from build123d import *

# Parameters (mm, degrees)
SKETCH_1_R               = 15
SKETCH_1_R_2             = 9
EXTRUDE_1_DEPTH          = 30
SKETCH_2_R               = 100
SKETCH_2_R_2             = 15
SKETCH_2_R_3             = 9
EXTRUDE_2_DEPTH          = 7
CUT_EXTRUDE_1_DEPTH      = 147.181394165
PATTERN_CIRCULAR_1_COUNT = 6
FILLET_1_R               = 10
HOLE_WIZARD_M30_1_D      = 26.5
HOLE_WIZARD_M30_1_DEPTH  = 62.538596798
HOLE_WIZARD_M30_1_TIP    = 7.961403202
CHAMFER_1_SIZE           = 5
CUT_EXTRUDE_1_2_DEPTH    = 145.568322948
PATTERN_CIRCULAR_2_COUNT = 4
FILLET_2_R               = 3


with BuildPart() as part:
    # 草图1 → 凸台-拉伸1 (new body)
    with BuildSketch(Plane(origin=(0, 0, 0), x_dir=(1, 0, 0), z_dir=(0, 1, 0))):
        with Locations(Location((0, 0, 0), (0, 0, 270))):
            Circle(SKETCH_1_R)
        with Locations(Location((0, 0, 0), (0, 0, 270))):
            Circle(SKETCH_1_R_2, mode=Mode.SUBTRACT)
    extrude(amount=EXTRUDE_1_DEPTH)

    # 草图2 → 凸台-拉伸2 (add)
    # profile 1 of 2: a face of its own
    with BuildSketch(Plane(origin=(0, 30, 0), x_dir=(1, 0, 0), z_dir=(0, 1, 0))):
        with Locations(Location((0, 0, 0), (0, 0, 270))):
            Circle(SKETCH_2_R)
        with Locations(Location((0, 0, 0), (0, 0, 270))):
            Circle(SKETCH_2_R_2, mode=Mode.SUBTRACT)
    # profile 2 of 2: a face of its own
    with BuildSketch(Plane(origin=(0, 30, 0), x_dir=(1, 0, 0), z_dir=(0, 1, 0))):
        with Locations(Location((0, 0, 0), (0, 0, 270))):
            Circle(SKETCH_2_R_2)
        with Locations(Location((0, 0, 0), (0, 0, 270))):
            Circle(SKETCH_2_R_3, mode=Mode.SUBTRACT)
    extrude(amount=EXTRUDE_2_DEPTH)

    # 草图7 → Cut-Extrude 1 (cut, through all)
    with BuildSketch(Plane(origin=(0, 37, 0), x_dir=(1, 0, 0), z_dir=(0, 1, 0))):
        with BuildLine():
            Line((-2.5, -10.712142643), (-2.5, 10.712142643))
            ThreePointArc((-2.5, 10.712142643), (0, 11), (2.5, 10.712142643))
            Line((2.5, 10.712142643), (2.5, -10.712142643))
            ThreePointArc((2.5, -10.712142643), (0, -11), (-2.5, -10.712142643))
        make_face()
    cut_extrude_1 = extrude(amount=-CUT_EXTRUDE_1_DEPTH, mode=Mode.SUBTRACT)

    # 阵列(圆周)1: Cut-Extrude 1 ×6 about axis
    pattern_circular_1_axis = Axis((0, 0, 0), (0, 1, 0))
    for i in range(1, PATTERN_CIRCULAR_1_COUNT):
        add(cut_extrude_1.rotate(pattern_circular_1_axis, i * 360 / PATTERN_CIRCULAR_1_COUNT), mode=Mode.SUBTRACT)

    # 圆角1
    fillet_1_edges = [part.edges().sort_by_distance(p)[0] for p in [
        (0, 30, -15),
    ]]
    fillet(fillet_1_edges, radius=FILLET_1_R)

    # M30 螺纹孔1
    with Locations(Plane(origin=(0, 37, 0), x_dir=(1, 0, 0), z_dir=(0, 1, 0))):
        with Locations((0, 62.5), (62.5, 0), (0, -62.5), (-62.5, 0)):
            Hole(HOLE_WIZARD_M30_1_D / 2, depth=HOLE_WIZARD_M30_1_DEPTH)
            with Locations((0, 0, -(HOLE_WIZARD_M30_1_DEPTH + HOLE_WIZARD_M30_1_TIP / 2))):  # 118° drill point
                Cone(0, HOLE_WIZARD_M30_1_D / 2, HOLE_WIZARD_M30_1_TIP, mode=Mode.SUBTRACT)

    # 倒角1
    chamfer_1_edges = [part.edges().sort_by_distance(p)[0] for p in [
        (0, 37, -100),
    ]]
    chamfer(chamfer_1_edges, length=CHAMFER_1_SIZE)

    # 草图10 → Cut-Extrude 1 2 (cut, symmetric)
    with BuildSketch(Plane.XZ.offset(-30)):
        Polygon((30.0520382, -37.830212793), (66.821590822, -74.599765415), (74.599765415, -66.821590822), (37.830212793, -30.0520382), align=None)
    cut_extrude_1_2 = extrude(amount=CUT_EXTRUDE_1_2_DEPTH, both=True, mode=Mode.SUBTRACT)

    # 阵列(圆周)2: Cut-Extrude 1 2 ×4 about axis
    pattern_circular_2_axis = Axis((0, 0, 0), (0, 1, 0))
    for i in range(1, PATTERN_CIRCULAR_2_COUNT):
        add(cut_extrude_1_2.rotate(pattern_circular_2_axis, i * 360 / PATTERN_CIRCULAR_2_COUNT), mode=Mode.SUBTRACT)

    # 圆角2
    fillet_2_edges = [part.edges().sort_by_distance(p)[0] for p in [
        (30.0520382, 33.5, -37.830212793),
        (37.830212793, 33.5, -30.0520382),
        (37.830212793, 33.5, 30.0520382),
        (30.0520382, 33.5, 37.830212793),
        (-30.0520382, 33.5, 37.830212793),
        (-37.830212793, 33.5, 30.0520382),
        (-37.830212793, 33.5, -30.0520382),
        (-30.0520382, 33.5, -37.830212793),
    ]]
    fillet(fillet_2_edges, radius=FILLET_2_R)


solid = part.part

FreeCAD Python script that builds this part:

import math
import FreeCAD as App
import Part
import Sketcher

V = App.Vector
Q = App.Units.Quantity


def edges_at(feature, points):
    """Names of the edges that pass closest to the given points."""
    edges = feature.Shape.Edges
    near = lambda p: min(range(len(edges)), key=lambda i: edges[i].distToShape(Part.Vertex(*p))[0])
    return sorted({f"Edge{near(p) + 1}" for p in points})

doc = App.newDocument("Part")
body = doc.addObject("PartDesign::Body", "Body")

# Sketch on XZ plane
sketch1 = body.newObject("Sketcher::SketchObject", "Sketch")
sketch1.AttachmentSupport = (doc.getObject("XZ_Plane"), [""])
sketch1.MapMode = "FlatFace"
sketch1.addGeometry([
    Part.Circle(V(0, 0, 0), V(0, 0, 1), 15),
    Part.Circle(V(0, 0, 0), V(0, 0, 1), 9),
], False)
sketch1.addConstraint([
    Sketcher.Constraint("Coincident", 0, 3, -1, 1),
    Sketcher.Constraint("Coincident", 1, 3, -1, 1),
    Sketcher.Constraint("Diameter", 0, 30.0),
    Sketcher.Constraint("Diameter", 1, 18.0),
])
pad1 = body.newObject("PartDesign::Pad", "Pad")
pad1.Profile = sketch1
pad1.Length = 30
pad1.Reversed = True

# Sketch on XZ plane
sketch2 = body.newObject("Sketcher::SketchObject", "Sketch001")
sketch2.AttachmentSupport = (doc.getObject("XZ_Plane"), [""])
sketch2.MapMode = "FlatFace"
sketch2.AttachmentOffset = App.Placement(V(0, 0, -30), App.Rotation())
sketch2.addGeometry([
    Part.Circle(V(0, 0, 0), V(0, 0, 1), 100),
    Part.Circle(V(0, 0, 0), V(0, 0, 1), 9),
], False)
sketch2.addConstraint([
    Sketcher.Constraint("Coincident", 0, 3, -1, 1),
    Sketcher.Constraint("Coincident", 1, 3, -1, 1),
    Sketcher.Constraint("Diameter", 0, 200.0),
    Sketcher.Constraint("Diameter", 1, 18.0),
])
pad2 = body.newObject("PartDesign::Pad", "Pad001")
pad2.Profile = sketch2
pad2.Length = 7
pad2.Reversed = True

# Sketch on XZ plane
sketch3 = body.newObject("Sketcher::SketchObject", "Sketch002")
sketch3.AttachmentSupport = (doc.getObject("XZ_Plane"), [""])
sketch3.MapMode = "FlatFace"
sketch3.AttachmentOffset = App.Placement(V(0, 0, -37), App.Rotation())
sketch3.addGeometry([
    Part.LineSegment(V(-2, -11, 0), V(-2, 11, 0)),
    Part.ArcOfCircle(Part.Circle(V(0, 0, 0), V(0, 0, 1), 11), math.radians(77), math.radians(103)),
    Part.LineSegment(V(2, 11, 0), V(2, -11, 0)),
    Part.ArcOfCircle(Part.Circle(V(0, 0, 0), V(0, 0, 1), 11), math.radians(-103), math.radians(-77)),
], False)
sketch3.addConstraint([
    Sketcher.Constraint("Coincident", 0, 2, 1, 2),
    Sketcher.Constraint("Coincident", 1, 1, 2, 1),
    Sketcher.Constraint("Coincident", 2, 2, 3, 2),
    Sketcher.Constraint("Coincident", 3, 1, 0, 1),
    Sketcher.Constraint("Vertical", 0),
    Sketcher.Constraint("Vertical", 2),
    Sketcher.Constraint("Coincident", 1, 3, -1, 1),
    Sketcher.Constraint("Coincident", 3, 3, -1, 1),
    Sketcher.Constraint("Equal", 1, 3),
    Sketcher.Constraint("Horizontal", 0, 2, 1, 1),
    Sketcher.Constraint("Radius", 1, 11.0),
    Sketcher.Constraint("DistanceX", 0, 2, 1, 1, 5.0),
])
pocket1 = body.newObject("PartDesign::Pocket", "Pocket")
pocket1.Profile = sketch3
pocket1.Type = "ThroughAll"
pocket1.Reversed = True
doc.recompute()

polarpattern = body.newObject("PartDesign::PolarPattern", "PolarPattern")
polarpattern.Originals = [pocket1]
polarpattern.Axis = (doc.getObject("Y_Axis"), [""])
polarpattern.Angle = 360
polarpattern.Occurrences = 6
body.Tip = polarpattern
doc.recompute()

fillet = body.newObject("PartDesign::Fillet", "Fillet")
fillet.Base = (polarpattern, edges_at(polarpattern, [(0, 30, -15)]))
fillet.Radius = 10

# Sketch on XZ plane
sketch4 = body.newObject("Sketcher::SketchObject", "Sketch003")
sketch4.AttachmentSupport = (doc.getObject("XZ_Plane"), [""])
sketch4.MapMode = "FlatFace"
sketch4.AttachmentOffset = App.Placement(V(0, 0, -37), App.Rotation())
sketch4.addGeometry([
    Part.Circle(V(0, -62, 0), V(0, 0, 1), 13),
    Part.Circle(V(62, 0, 0), V(0, 0, 1), 13),
    Part.Circle(V(0, 62, 0), V(0, 0, 1), 13),
    Part.Circle(V(-62, 0, 0), V(0, 0, 1), 13),
], False)
sketch4.addConstraint([
    Sketcher.Constraint("Equal", 0, 1),
    Sketcher.Constraint("Equal", 1, 2),
    Sketcher.Constraint("Equal", 2, 3),
    Sketcher.Constraint("Symmetric", 0, 3, 2, 3, -1, 1),
    Sketcher.Constraint("Symmetric", 1, 3, 3, 3, -1, 1),
    Sketcher.Constraint("PointOnObject", 0, 3, -2),
    Sketcher.Constraint("PointOnObject", 1, 3, -1),
    Sketcher.Constraint("Diameter", 0, 26.5),
    Sketcher.Constraint("DistanceY", 0, 3, 2, 3, 125.0),
    Sketcher.Constraint("DistanceX", 3, 3, 1, 3, 125.0),
])
doc.recompute()
hole = body.newObject("PartDesign::Hole", "Hole")
hole.Profile = sketch4
hole.ThreadType = "None"
hole.Diameter = 26.5
hole.DepthType = "Dimension"
hole.Depth = 62.538597
hole.DrillPoint = "Angled"
hole.DrillPointAngle = 118
hole.Reversed = True
doc.recompute()

chamfer = body.newObject("PartDesign::Chamfer", "Chamfer")
chamfer.Base = (hole, edges_at(hole, [(0, 37, -100)]))
chamfer.Size = 5

# Sketch on XZ plane
sketch5 = body.newObject("Sketcher::SketchObject", "Sketch004")
sketch5.AttachmentSupport = (doc.getObject("XZ_Plane"), [""])
sketch5.MapMode = "FlatFace"
sketch5.AttachmentOffset = App.Placement(V(0, 0, -30), App.Rotation())
sketch5.addGeometry([
    Part.LineSegment(V(30, -38, 0), V(67, -75, 0)),
    Part.LineSegment(V(67, -75, 0), V(75, -67, 0)),
    Part.LineSegment(V(75, -67, 0), V(38, -30, 0)),
    Part.LineSegment(V(38, -30, 0), V(30, -38, 0)),
], False)
sketch5.addConstraint([
    Sketcher.Constraint("Coincident", 0, 2, 1, 1),
    Sketcher.Constraint("Coincident", 1, 2, 2, 1),
    Sketcher.Constraint("Coincident", 2, 2, 3, 1),
    Sketcher.Constraint("Coincident", 3, 2, 0, 1),
    Sketcher.Constraint("Perpendicular", 0, 1),
    Sketcher.Constraint("Perpendicular", 1, 2),
    Sketcher.Constraint("Perpendicular", 2, 3),
    Sketcher.Constraint("Angle", 0, Q("-45 deg")),
    Sketcher.Constraint("Distance", 0, 52.0),
    Sketcher.Constraint("Distance", 1, 11.0),
    Sketcher.Constraint("DistanceX", -1, 1, 0, 2, 66.821591),
    Sketcher.Constraint("DistanceY", 1, 2, -1, 1, 66.821591),
])
pocket2 = body.newObject("PartDesign::Pocket", "Pocket001")
pocket2.Profile = sketch5
pocket2.Length = 291.136646
pocket2.Midplane = True
doc.recompute()

polarpattern2 = body.newObject("PartDesign::PolarPattern", "PolarPattern001")
polarpattern2.Originals = [pocket2]
polarpattern2.Axis = (doc.getObject("Y_Axis"), [""])
polarpattern2.Angle = 360
polarpattern2.Occurrences = 4
body.Tip = polarpattern2
doc.recompute()

fillet2 = body.newObject("PartDesign::Fillet", "Fillet001")
fillet2.Base = (polarpattern2, edges_at(polarpattern2, [
    (30.052, 33.5, -37.83),
    (37.83, 33.5, -30.052),
    (37.83, 33.5, 30.052),
    (30.052, 33.5, 37.83),
    (-30.052, 33.5, 37.83),
    (-37.83, 33.5, 30.052),
    (-37.83, 33.5, -30.052),
    (-30.052, 33.5, -37.83),
]))
fillet2.Radius = 3

doc.recompute()
